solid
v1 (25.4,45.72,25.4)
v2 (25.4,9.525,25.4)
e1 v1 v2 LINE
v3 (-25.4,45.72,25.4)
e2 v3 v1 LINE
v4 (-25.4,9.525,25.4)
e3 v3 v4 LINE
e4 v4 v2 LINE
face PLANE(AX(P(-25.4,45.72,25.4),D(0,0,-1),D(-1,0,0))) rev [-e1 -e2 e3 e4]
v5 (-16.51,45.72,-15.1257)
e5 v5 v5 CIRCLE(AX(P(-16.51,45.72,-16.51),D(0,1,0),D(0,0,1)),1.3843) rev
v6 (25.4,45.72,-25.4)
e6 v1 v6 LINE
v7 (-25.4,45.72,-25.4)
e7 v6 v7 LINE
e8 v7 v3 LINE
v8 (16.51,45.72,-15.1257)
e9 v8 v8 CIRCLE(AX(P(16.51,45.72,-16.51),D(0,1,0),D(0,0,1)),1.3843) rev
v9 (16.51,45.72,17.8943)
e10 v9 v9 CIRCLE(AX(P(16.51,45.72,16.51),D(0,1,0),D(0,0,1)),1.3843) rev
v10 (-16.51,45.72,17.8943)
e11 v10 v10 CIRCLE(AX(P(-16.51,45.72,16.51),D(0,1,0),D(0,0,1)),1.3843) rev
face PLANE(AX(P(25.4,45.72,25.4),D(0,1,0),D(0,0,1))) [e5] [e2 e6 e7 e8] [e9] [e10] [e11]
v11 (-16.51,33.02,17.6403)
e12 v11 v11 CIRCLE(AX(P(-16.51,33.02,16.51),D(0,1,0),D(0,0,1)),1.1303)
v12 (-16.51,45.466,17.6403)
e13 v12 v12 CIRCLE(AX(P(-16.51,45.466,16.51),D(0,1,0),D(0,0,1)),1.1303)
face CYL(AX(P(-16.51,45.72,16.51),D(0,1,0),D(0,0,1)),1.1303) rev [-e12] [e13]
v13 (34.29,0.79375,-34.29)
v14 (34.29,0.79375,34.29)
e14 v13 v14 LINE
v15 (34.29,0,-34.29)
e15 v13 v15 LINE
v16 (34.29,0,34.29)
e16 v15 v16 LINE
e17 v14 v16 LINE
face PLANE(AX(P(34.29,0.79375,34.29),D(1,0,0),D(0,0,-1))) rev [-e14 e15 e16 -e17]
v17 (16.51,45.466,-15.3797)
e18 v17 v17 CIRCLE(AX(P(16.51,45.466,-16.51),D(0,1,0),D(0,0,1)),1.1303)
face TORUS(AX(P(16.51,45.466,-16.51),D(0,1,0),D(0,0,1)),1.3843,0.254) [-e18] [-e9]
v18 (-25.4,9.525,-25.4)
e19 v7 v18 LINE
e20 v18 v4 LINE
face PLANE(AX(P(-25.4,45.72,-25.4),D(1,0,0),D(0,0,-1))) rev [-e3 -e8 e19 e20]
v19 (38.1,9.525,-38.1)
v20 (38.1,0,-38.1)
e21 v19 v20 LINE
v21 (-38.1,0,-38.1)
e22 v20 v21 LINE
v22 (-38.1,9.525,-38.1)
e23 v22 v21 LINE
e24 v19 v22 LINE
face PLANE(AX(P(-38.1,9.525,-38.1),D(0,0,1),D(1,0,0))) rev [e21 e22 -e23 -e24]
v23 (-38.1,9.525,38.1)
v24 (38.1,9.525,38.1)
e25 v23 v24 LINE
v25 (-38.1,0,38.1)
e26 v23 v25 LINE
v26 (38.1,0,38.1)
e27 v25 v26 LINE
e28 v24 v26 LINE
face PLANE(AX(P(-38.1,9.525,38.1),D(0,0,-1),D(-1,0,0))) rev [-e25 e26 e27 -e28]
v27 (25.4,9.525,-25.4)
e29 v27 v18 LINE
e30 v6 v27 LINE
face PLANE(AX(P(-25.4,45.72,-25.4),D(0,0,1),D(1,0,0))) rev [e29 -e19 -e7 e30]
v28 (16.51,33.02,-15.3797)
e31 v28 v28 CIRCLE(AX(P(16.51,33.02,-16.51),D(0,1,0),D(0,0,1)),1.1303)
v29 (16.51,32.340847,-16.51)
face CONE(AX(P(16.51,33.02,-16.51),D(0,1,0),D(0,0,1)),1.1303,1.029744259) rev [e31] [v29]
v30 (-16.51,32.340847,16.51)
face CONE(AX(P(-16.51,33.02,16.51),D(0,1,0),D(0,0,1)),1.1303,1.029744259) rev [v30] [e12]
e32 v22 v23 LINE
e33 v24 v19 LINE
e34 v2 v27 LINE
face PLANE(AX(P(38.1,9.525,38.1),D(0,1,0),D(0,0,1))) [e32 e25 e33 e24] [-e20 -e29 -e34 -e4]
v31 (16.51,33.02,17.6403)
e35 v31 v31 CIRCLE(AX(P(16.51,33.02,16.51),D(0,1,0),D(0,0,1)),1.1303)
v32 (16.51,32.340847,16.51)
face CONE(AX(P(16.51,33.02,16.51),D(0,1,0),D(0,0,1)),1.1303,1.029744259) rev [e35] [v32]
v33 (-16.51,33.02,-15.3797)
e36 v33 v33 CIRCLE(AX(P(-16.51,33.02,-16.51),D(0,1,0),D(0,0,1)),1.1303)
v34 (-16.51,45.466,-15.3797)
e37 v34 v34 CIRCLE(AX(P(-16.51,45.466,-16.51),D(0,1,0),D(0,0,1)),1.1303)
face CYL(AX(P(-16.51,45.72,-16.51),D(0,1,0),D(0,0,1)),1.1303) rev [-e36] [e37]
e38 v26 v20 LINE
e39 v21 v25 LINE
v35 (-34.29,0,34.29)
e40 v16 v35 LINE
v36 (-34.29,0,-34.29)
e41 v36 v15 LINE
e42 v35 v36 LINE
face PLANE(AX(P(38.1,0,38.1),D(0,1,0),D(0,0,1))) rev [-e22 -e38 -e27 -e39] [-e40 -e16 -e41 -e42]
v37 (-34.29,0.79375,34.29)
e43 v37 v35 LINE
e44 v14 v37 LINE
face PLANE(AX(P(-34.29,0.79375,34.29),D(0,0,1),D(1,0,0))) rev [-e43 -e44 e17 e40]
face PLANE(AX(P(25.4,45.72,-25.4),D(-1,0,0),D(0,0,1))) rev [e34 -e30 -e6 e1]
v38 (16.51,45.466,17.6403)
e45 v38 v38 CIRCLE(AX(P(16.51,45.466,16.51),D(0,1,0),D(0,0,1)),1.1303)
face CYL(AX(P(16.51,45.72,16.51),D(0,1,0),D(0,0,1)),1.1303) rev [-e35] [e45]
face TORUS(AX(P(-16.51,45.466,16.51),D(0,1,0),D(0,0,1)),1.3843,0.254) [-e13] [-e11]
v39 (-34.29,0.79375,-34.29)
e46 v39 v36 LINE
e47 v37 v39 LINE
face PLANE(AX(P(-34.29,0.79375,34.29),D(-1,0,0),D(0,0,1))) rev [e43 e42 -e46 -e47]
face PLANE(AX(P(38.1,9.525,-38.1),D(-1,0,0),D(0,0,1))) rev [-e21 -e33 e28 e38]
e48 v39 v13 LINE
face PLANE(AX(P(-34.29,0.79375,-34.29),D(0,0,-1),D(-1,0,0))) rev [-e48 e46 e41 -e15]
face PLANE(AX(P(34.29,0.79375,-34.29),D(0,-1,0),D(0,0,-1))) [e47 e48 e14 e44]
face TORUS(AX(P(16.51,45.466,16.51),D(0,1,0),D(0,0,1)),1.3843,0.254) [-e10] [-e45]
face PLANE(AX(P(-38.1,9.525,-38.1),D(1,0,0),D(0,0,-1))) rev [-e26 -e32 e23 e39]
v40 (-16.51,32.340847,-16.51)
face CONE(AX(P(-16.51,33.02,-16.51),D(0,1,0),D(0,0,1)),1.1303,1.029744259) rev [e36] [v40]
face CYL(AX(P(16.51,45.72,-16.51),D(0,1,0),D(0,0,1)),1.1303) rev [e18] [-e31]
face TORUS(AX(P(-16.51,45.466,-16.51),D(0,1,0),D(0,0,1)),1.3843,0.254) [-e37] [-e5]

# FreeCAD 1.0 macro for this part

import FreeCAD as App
import Part
import Sketcher
from FreeCAD import Vector
Q = App.Units.Quantity


def edges_at(feature, points):
    """Names of the edges that pass closest to the given points."""
    edges = feature.Shape.Edges
    near = lambda p: min(range(len(edges)), key=lambda i: edges[i].distToShape(Part.Vertex(*p))[0])
    return sorted({f"Edge{near(p) + 1}" for p in points})


def add_polygon(sketch, points):
    """Adds a closed chain of lines whose ends are joined by coincident constraints."""
    first, n = sketch.GeometryCount, len(points)
    for a, b in zip(points, points[1:] + points[:1]):
        sketch.addGeometry(Part.LineSegment(App.Vector(*a, 0), App.Vector(*b, 0)), False)
    for i in range(n):
        sketch.addConstraint(Sketcher.Constraint("Coincident", first + i, 2, first + (i + 1) % n, 1))

doc = App.newDocument("Part")
params = doc.addObject("Spreadsheet::Sheet", "Params")
for row, (alias, value) in enumerate([
    ("sketch1_width", "3 in"),
    ("pad1_length", "0.375 in"),
    ("sketch2_width", "2.7 in"),
    ("pocket1_length", "0.03125 in"),
    ("sketch3_width", "2 in"),
    ("pad2_length", "1.425 in"),
    ("sketch4_diameter", "0.089 in"),
    ("hole_diameter", "0.089 in"),
    ("hole_depth", "0.5 in"),
    ("fillet_radius", "0.01 in"),
], start=1):
    params.set(f"A{row}", alias)
    params.set(f"B{row}", "=" + value)
    params.setAlias(f"B{row}", alias)

body = doc.addObject("PartDesign::Body", "Body")

sketch1 = body.newObject("Sketcher::SketchObject", "Sketch")
sketch1.AttachmentSupport = (doc.getObject("XZ_Plane"), [""])
sketch1.MapMode = "FlatFace"
add_polygon(sketch1, [(-38, -38), (-38, 38), (38, 38), (38, -38)])
sketch1.addConstraint([
    Sketcher.Constraint("Vertical", 0),
    Sketcher.Constraint("Horizontal", 1),
    Sketcher.Constraint("Vertical", 2),
    Sketcher.Constraint("Horizontal", 3),
    Sketcher.Constraint("Symmetric", 0, 2, 2, 2, -1, 1),
    Sketcher.Constraint("Equal", 3, 0),
    Sketcher.Constraint("DistanceX", 1, 1, 1, 2, Q("3 in")),
])
sketch1.setExpression("Constraints[10]", "Params.sketch1_width")
pad1 = body.newObject("PartDesign::Pad", "Pad")
pad1.Profile = sketch1
pad1.setExpression("Length", "Params.pad1_length")
pad1.Reversed = True

sketch2 = body.newObject("Sketcher::SketchObject", "Sketch001")
sketch2.AttachmentSupport = (doc.getObject("XZ_Plane"), [""])
sketch2.MapMode = "FlatFace"
add_polygon(sketch2, [(-34, 34), (-34, -34), (34, -34), (34, 34)])
sketch2.addConstraint([
    Sketcher.Constraint("Vertical", 0),
    Sketcher.Constraint("Horizontal", 1),
    Sketcher.Constraint("Vertical", 2),
    Sketcher.Constraint("Horizontal", 3),
    Sketcher.Constraint("Symmetric", 0, 2, 2, 2, -1, 1),
    Sketcher.Constraint("Equal", 3, 0),
    Sketcher.Constraint("DistanceX", 1, 1, 1, 2, Q("2.7 in")),
])
sketch2.setExpression("Constraints[10]", "Params.sketch2_width")
pocket1 = body.newObject("PartDesign::Pocket", "Pocket")
pocket1.Profile = sketch2
pocket1.setExpression("Length", "Params.pocket1_length")

sketch3 = body.newObject("Sketcher::SketchObject", "Sketch002")
sketch3.AttachmentSupport = (doc.getObject("XZ_Plane"), [""])
sketch3.MapMode = "FlatFace"
sketch3.AttachmentOffset = App.Placement(Vector(0, 0, -0.375 * 25.4), App.Rotation())
add_polygon(sketch3, [(-25, -25), (-25, 25), (25, 25), (25, -25)])
sketch3.addConstraint([
    Sketcher.Constraint("Vertical", 0),
    Sketcher.Constraint("Horizontal", 1),
    Sketcher.Constraint("Vertical", 2),
    Sketcher.Constraint("Horizontal", 3),
    Sketcher.Constraint("Symmetric", 0, 2, 2, 2, -1, 1),
    Sketcher.Constraint("Equal", 3, 0),
    Sketcher.Constraint("DistanceX", 1, 1, 1, 2, Q("2 in")),
])
sketch3.setExpression("Constraints[10]", "Params.sketch3_width")
pad2 = body.newObject("PartDesign::Pad", "Pad001")
pad2.Profile = sketch3
pad2.setExpression("Length", "Params.pad2_length")
pad2.Reversed = True

sketch4 = body.newObject("Sketcher::SketchObject", "Sketch003")
sketch4.AttachmentSupport = (doc.getObject("XZ_Plane"), [""])
sketch4.MapMode = "FlatFace"
sketch4.AttachmentOffset = App.Placement(Vector(0, 0, -1.8 * 25.4), App.Rotation())
sketch4.addGeometry([
    Part.Circle(Vector(-16.5, -16.5, 0), Vector(0, 0, 1), 1.1),
    Part.Circle(Vector(-16.5, 16.5, 0), Vector(0, 0, 1), 1.1),
    Part.Circle(Vector(16.5, 16.5, 0), Vector(0, 0, 1), 1.1),
    Part.Circle(Vector(16.5, -16.5, 0), Vector(0, 0, 1), 1.1),
], False)
sketch4.addConstraint([
    Sketcher.Constraint("Equal", 0, 1),
    Sketcher.Constraint("Equal", 1, 2),
    Sketcher.Constraint("Equal", 2, 3),
    Sketcher.Constraint("Symmetric", 0, 3, 2, 3, -1, 1),
    Sketcher.Constraint("Symmetric", 1, 3, 3, 3, -1, 1),
    Sketcher.Constraint("Symmetric", 1, 3, 2, 3, -2),
    Sketcher.Constraint("Diameter", 0, Q("0.089 in")),
    Sketcher.Constraint("DistanceY", 0, 3, 1, 3, Q("1.3 in")),
    Sketcher.Constraint("DistanceX", 1, 3, 2, 3, Q("1.3 in")),
])
sketch4.setExpression("Constraints[6]", "Params.sketch4_diameter")
doc.recompute()
hole = body.newObject("PartDesign::Hole", "Hole")
hole.Profile = sketch4
hole.ThreadType = "None"
hole.setExpression("Diameter", "Params.hole_diameter")
hole.DepthType = "Dimension"
hole.setExpression("Depth", "Params.hole_depth")
hole.DrillPoint = "Angled"
hole.DrillPointAngle = 118
hole.Reversed = True
doc.recompute()

fillet = body.newObject("PartDesign::Fillet", "Fillet")
fillet.Base = (hole, edges_at(hole, [
    (16.51, 45.72, -15.38),
    (16.51, 45.72, 17.64),
    (-16.51, 45.72, 17.64),
    (-16.51, 45.72, -15.38),
]))
fillet.setExpression("Radius", "Params.fillet_radius")

doc.recompute()
